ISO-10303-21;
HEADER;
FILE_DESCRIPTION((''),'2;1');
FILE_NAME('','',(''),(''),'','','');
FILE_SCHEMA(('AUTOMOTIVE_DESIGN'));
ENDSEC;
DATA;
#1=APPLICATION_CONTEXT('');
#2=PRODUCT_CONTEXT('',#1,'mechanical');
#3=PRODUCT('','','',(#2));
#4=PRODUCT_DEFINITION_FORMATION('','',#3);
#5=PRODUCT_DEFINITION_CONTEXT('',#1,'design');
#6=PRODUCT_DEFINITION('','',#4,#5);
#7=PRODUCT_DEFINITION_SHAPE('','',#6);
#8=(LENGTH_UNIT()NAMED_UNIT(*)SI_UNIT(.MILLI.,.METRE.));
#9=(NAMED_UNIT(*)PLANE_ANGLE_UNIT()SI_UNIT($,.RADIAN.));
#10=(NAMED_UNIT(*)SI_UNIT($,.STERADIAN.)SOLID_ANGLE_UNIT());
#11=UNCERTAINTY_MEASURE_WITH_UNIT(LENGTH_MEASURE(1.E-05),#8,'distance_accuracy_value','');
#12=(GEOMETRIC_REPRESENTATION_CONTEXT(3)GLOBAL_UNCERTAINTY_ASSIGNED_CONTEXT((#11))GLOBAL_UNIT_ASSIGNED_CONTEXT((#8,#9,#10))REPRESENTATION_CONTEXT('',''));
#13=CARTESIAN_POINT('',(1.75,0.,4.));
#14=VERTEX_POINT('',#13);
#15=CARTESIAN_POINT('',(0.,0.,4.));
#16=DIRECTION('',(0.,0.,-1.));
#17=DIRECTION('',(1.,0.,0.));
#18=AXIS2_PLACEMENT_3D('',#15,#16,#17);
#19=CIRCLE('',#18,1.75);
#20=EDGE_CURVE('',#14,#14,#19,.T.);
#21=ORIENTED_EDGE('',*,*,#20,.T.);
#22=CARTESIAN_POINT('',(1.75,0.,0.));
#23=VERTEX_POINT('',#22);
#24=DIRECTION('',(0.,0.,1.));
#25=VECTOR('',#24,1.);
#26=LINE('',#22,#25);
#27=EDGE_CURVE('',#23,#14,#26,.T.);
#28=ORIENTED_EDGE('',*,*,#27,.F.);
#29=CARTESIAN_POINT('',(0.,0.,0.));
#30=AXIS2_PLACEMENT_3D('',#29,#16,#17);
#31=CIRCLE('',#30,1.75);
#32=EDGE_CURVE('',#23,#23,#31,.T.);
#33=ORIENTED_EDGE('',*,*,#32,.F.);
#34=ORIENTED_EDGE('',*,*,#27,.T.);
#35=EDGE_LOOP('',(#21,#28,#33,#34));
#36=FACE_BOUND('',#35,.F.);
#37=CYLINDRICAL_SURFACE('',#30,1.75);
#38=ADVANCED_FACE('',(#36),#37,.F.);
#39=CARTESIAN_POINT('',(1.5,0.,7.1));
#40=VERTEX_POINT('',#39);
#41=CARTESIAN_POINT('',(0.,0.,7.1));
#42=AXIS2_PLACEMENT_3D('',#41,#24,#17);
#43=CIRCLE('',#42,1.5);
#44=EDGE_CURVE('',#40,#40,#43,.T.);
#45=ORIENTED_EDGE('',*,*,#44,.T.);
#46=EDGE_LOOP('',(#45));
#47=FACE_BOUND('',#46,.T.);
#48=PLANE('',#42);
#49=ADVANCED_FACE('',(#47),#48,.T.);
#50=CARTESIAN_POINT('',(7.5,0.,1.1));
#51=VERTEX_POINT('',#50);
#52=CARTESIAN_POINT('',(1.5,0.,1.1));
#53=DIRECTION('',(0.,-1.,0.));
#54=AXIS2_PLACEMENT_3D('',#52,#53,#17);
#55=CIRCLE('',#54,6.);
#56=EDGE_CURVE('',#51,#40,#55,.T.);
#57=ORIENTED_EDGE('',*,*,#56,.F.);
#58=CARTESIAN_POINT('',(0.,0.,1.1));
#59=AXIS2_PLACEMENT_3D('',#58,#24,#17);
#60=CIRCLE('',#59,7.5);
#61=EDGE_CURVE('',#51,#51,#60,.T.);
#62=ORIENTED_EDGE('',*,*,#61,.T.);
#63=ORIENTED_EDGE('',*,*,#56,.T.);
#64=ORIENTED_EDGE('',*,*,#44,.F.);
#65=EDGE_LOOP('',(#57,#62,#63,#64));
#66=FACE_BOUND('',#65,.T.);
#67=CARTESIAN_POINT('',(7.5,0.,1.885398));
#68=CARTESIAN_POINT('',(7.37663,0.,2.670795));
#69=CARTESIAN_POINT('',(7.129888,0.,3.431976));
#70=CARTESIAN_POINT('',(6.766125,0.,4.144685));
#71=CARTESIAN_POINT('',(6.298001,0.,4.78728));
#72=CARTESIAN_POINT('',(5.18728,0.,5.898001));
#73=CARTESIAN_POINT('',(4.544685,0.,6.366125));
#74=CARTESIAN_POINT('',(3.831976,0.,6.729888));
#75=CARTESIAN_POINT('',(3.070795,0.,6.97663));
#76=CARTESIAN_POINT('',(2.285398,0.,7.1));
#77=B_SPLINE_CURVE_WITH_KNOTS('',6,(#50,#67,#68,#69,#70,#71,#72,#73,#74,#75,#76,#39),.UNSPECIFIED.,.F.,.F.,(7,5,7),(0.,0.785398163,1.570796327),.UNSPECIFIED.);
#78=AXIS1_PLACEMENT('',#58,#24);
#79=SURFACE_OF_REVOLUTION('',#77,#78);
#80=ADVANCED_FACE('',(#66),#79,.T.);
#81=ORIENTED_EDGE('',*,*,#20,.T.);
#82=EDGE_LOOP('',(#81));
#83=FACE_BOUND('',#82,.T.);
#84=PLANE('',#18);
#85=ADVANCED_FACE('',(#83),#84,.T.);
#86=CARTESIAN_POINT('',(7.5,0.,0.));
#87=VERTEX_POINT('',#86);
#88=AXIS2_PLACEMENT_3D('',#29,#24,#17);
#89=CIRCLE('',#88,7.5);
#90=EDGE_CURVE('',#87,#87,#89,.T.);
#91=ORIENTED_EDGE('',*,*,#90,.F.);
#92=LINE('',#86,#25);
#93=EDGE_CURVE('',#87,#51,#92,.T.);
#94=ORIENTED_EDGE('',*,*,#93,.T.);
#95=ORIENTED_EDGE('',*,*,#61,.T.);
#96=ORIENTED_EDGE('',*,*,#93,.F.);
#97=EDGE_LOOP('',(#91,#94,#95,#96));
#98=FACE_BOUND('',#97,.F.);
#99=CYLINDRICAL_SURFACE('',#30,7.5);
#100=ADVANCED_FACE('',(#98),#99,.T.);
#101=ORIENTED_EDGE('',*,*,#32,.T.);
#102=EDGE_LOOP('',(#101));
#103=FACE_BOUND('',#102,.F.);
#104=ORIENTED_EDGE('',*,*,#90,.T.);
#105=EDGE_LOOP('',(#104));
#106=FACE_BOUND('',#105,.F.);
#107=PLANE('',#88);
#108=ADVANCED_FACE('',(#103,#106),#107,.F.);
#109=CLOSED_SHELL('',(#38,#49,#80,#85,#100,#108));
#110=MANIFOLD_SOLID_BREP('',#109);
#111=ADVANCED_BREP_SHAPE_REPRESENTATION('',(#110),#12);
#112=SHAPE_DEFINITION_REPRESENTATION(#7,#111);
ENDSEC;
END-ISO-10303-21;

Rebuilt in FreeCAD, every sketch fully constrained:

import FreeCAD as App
import Part
import Sketcher


def edges_at(feature, points):
    """Names of the edges that pass closest to the given points."""
    edges = feature.Shape.Edges
    near = lambda p: min(range(len(edges)), key=lambda i: edges[i].distToShape(Part.Vertex(*p))[0])
    return sorted({f"Edge{near(p) + 1}" for p in points})

doc = App.newDocument("Part")
body = doc.addObject("PartDesign::Body", "Body")

# Sketch on XY plane
sketch1 = doc.addObject("Sketcher::SketchObject", "Sketch")
body.addObject(sketch1)
sketch1.AttachmentSupport = (doc.XY_Plane, [""])
sketch1.MapMode = "FlatFace"
sketch1.addGeometry(Part.Circle(App.Vector(0, 0, 0), App.Vector(0, 0, 1), 7.5), False)
sketch1.addConstraint(Sketcher.Constraint("Coincident", 0, 3, -1, 1))
sketch1.addConstraint(Sketcher.Constraint("Diameter", 0, 15.0))
pad1 = doc.addObject("PartDesign::Pad", "Pad")
body.addObject(pad1)
pad1.Profile = sketch1
pad1.Length = 7.1

# Sketch on XY plane
sketch2 = doc.addObject("Sketcher::SketchObject", "Sketch001")
body.addObject(sketch2)
sketch2.AttachmentSupport = (doc.XY_Plane, [""])
sketch2.MapMode = "FlatFace"
sketch2.addGeometry(Part.Circle(App.Vector(0, 0, 0), App.Vector(0, 0, 1), 1.75), False)
sketch2.addConstraint(Sketcher.Constraint("Coincident", 0, 3, -1, 1))
sketch2.addConstraint(Sketcher.Constraint("Diameter", 0, 3.5))
pocket1 = doc.addObject("PartDesign::Pocket", "Pocket")
body.addObject(pocket1)
pocket1.Profile = sketch2
pocket1.Length = 4
pocket1.Reversed = True
doc.recompute()

fillet = doc.addObject("PartDesign::Fillet", "Fillet")
body.addObject(fillet)
fillet.Base = (pocket1, edges_at(pocket1, [(-7.5, 0, 7.1)]))
fillet.Radius = 6

doc.recompute()
